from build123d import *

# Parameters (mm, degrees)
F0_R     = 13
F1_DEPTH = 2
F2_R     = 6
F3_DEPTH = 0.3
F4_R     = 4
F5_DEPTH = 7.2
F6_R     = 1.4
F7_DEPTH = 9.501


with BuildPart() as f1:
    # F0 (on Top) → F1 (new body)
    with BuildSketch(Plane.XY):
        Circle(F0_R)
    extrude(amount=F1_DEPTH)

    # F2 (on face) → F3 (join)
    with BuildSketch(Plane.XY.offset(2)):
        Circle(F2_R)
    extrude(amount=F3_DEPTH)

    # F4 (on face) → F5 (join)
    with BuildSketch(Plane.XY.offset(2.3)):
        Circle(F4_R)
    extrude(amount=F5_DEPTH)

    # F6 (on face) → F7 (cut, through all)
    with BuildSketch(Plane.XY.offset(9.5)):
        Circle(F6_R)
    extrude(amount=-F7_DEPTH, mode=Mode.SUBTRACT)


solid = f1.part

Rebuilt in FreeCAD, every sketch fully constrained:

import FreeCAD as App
import Part
import Sketcher

V = App.Vector

doc = App.newDocument("Part")
body = doc.addObject("PartDesign::Body", "Body")

# Sketch on XY plane
sketch1 = doc.addObject("Sketcher::SketchObject", "Sketch")
body.addObject(sketch1)
sketch1.AttachmentSupport = (doc.XY_Plane, [""])
sketch1.MapMode = "FlatFace"
sketch1.addGeometry(Part.Circle(V(0, 0, 0), V(0, 0, 1), 13), False)
sketch1.addConstraint([
    Sketcher.Constraint("Coincident", 0, 3, -1, 1),
    Sketcher.Constraint("Diameter", 0, 26.0),
])
pad1 = doc.addObject("PartDesign::Pad", "Pad")
body.addObject(pad1)
pad1.Profile = sketch1
pad1.Length = 2

# Sketch on XY plane
sketch2 = doc.addObject("Sketcher::SketchObject", "Sketch001")
body.addObject(sketch2)
sketch2.AttachmentSupport = (doc.XY_Plane, [""])
sketch2.MapMode = "FlatFace"
sketch2.AttachmentOffset = App.Placement(V(0, 0, 2), App.Rotation())
sketch2.addGeometry(Part.Circle(V(0, 0, 0), V(0, 0, 1), 6), False)
sketch2.addConstraint([
    Sketcher.Constraint("Coincident", 0, 3, -1, 1),
    Sketcher.Constraint("Diameter", 0, 12.0),
])
pad2 = doc.addObject("PartDesign::Pad", "Pad001")
body.addObject(pad2)
pad2.Profile = sketch2
pad2.Length = 0.3

# Sketch on XY plane
sketch3 = doc.addObject("Sketcher::SketchObject", "Sketch002")
body.addObject(sketch3)
sketch3.AttachmentSupport = (doc.XY_Plane, [""])
sketch3.MapMode = "FlatFace"
sketch3.AttachmentOffset = App.Placement(V(0, 0, 2.3), App.Rotation())
sketch3.addGeometry(Part.Circle(V(0, 0, 0), V(0, 0, 1), 4), False)
sketch3.addConstraint([
    Sketcher.Constraint("Coincident", 0, 3, -1, 1),
    Sketcher.Constraint("Diameter", 0, 8.0),
])
pad3 = doc.addObject("PartDesign::Pad", "Pad002")
body.addObject(pad3)
pad3.Profile = sketch3
pad3.Length = 7.2

# Sketch on XY plane
sketch4 = doc.addObject("Sketcher::SketchObject", "Sketch003")
body.addObject(sketch4)
sketch4.AttachmentSupport = (doc.XY_Plane, [""])
sketch4.MapMode = "FlatFace"
sketch4.AttachmentOffset = App.Placement(V(0, 0, 9.5), App.Rotation())
sketch4.addGeometry(Part.Circle(V(0, 0, 0), V(0, 0, 1), 1.4), False)
sketch4.addConstraint([
    Sketcher.Constraint("Coincident", 0, 3, -1, 1),
    Sketcher.Constraint("Diameter", 0, 2.8),
])
pocket1 = doc.addObject("PartDesign::Pocket", "Pocket")
body.addObject(pocket1)
pocket1.Profile = sketch4
pocket1.Type = "ThroughAll"

doc.recompute()
